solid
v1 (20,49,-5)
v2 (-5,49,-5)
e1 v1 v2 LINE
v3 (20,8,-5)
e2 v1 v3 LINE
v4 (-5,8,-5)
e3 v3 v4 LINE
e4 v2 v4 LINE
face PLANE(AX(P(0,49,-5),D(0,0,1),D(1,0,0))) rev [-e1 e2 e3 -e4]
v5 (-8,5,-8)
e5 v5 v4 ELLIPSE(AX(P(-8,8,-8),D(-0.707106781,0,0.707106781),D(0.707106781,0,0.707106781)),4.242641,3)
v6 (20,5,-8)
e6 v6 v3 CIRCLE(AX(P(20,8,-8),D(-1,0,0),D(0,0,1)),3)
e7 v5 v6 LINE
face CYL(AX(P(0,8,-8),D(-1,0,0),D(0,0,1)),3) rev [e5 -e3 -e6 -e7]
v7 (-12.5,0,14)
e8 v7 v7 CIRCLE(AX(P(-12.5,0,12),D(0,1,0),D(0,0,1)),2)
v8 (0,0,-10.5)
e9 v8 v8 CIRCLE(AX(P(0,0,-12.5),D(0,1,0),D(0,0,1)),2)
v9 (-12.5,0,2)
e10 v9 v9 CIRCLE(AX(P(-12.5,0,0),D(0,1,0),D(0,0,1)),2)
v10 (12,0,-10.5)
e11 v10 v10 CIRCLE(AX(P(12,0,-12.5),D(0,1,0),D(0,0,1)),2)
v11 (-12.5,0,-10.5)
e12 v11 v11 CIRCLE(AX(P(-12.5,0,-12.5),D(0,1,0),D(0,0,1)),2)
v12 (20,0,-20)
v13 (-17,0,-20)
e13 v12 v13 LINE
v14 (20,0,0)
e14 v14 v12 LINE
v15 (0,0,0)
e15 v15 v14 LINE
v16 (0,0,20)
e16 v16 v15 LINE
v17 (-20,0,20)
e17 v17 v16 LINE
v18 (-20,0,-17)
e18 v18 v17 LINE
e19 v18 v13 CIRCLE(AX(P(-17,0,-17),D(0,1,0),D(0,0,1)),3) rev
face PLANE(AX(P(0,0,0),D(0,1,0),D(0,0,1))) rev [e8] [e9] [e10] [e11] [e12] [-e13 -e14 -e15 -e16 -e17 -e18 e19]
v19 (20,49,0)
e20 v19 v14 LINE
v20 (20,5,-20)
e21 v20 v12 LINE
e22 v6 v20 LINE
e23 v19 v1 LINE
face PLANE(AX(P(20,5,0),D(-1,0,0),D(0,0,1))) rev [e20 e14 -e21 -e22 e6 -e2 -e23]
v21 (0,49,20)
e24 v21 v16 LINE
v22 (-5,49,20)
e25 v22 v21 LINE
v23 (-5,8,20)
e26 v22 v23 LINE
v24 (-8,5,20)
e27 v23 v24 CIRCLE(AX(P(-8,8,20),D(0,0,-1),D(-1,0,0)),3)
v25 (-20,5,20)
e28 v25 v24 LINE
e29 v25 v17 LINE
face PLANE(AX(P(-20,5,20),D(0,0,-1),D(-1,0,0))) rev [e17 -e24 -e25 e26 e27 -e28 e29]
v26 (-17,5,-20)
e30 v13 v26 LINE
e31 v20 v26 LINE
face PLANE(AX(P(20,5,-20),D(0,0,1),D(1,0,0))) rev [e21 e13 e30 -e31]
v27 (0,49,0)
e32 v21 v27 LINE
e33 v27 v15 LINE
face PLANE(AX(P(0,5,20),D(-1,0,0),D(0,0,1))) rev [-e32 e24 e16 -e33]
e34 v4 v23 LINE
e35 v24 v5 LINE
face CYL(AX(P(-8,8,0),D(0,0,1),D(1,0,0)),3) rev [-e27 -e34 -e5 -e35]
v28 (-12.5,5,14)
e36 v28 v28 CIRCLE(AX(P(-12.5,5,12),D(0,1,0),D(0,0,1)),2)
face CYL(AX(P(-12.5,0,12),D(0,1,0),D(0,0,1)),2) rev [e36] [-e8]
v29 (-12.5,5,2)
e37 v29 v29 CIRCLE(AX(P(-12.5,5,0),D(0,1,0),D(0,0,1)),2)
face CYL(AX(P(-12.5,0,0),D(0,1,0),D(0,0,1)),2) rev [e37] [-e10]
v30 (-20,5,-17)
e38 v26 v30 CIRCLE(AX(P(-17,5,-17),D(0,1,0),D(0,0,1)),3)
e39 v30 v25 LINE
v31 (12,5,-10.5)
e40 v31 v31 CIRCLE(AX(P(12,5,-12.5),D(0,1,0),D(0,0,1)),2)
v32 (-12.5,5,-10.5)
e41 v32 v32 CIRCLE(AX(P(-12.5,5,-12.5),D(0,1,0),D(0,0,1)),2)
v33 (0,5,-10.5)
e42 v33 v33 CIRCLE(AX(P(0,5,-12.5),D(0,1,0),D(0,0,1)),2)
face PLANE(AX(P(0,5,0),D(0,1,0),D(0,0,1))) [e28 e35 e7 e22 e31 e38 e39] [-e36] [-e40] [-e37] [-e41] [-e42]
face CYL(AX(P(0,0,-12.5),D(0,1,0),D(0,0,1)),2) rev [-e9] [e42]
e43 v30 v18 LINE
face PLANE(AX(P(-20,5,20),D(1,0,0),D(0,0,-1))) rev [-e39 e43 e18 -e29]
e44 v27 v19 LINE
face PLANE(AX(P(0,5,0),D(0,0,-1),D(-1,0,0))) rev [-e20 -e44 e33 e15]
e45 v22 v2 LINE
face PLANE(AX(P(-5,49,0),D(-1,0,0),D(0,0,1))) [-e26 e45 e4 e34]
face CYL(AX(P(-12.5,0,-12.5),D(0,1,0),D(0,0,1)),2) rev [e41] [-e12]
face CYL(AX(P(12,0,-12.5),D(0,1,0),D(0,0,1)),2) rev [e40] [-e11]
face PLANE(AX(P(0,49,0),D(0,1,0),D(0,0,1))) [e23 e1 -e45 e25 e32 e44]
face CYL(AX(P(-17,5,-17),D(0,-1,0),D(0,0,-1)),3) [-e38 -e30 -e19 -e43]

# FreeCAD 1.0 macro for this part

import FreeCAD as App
import Part
import Sketcher
Q = App.Units.Quantity


def edges_at(feature, points):
    """Names of the edges that pass closest to the given points."""
    edges = feature.Shape.Edges
    near = lambda p: min(range(len(edges)), key=lambda i: edges[i].distToShape(Part.Vertex(*p))[0])
    return sorted({f"Edge{near(p) + 1}" for p in points})

doc = App.newDocument("Part")
params = doc.addObject("Spreadsheet::Sheet", "Params")
for row, (alias, value) in enumerate([
    ("sketch1_width", "40 mm"),
    ("pad1_length", "5 mm"),
    ("sketch2_width", "5 mm"),
    ("sketch2_width2", "20 mm"),
    ("pad2_length", "44 mm"),
    ("sketch3_diameter", "4 mm"),
    ("fillet_radius", "3 mm"),
    ("fillet2_radius", "3 mm"),
], start=1):
    params.set(f"A{row}", alias)
    params.set(f"B{row}", "=" + value)
    params.setAlias(f"B{row}", alias)

body = doc.addObject("PartDesign::Body", "Body")

sketch1 = body.newObject("Sketcher::SketchObject", "Sketch")
sketch1.AttachmentSupport = (doc.getObject("XZ_Plane"), [""])
sketch1.MapMode = "FlatFace"
sketch1.addGeometry(Part.LineSegment(App.Vector(20, -20, 0), App.Vector(-20, -20, 0)), False)
sketch1.addGeometry(Part.LineSegment(App.Vector(-20, -20, 0), App.Vector(-20, 20, 0)), False)
sketch1.addGeometry(Part.LineSegment(App.Vector(-20, 20, 0), App.Vector(0, 20, 0)), False)
sketch1.addGeometry(Part.LineSegment(App.Vector(0, 20, 0), App.Vector(0, 0, 0)), False)
sketch1.addGeometry(Part.LineSegment(App.Vector(0, 0, 0), App.Vector(20, 0, 0)), False)
sketch1.addGeometry(Part.LineSegment(App.Vector(20, 0, 0), App.Vector(20, -20, 0)), False)
sketch1.addConstraint(Sketcher.Constraint("Coincident", 0, 2, 1, 1))
sketch1.addConstraint(Sketcher.Constraint("Coincident", 1, 2, 2, 1))
sketch1.addConstraint(Sketcher.Constraint("Coincident", 2, 2, 3, 1))
sketch1.addConstraint(Sketcher.Constraint("Coincident", 3, 2, 4, 1))
sketch1.addConstraint(Sketcher.Constraint("Coincident", 4, 2, 5, 1))
sketch1.addConstraint(Sketcher.Constraint("Coincident", 5, 2, 0, 1))
sketch1.addConstraint(Sketcher.Constraint("Horizontal", 0))
sketch1.addConstraint(Sketcher.Constraint("Vertical", 1))
sketch1.addConstraint(Sketcher.Constraint("Horizontal", 2))
sketch1.addConstraint(Sketcher.Constraint("Vertical", 3))
sketch1.addConstraint(Sketcher.Constraint("Horizontal", 4))
sketch1.addConstraint(Sketcher.Constraint("Vertical", 5))
sketch1.addConstraint(Sketcher.Constraint("Coincident", 3, 2, -1, 1))
sketch1.addConstraint(Sketcher.Constraint("Symmetric", 1, 2, 5, 2, -1, 1))
sketch1.addConstraint(Sketcher.Constraint("Equal", 0, 1))
sketch1.addConstraint(Sketcher.Constraint("DistanceX", 0, 2, 0, 1, Q("40 mm")))
sketch1.setExpression("Constraints[15]", "Params.sketch1_width")
pad1 = body.newObject("PartDesign::Pad", "Pad")
pad1.Profile = sketch1
pad1.setExpression("Length", "Params.pad1_length")
pad1.Reversed = True

sketch2 = body.newObject("Sketcher::SketchObject", "Sketch001")
sketch2.AttachmentSupport = (doc.getObject("XZ_Plane"), [""])
sketch2.MapMode = "FlatFace"
sketch2.AttachmentOffset = App.Placement(App.Vector(0, 0, -5), App.Rotation())
sketch2.addGeometry(Part.LineSegment(App.Vector(-5, 20, 0), App.Vector(0, 20, 0)), False)
sketch2.addGeometry(Part.LineSegment(App.Vector(0, 20, 0), App.Vector(0, 0, 0)), False)
sketch2.addGeometry(Part.LineSegment(App.Vector(0, 0, 0), App.Vector(20, 0, 0)), False)
sketch2.addGeometry(Part.LineSegment(App.Vector(20, 0, 0), App.Vector(20, -5, 0)), False)
sketch2.addGeometry(Part.LineSegment(App.Vector(20, -5, 0), App.Vector(-5, -5, 0)), False)
sketch2.addGeometry(Part.LineSegment(App.Vector(-5, -5, 0), App.Vector(-5, 20, 0)), False)
sketch2.addConstraint(Sketcher.Constraint("Coincident", 0, 2, 1, 1))
sketch2.addConstraint(Sketcher.Constraint("Coincident", 1, 2, 2, 1))
sketch2.addConstraint(Sketcher.Constraint("Coincident", 2, 2, 3, 1))
sketch2.addConstraint(Sketcher.Constraint("Coincident", 3, 2, 4, 1))
sketch2.addConstraint(Sketcher.Constraint("Coincident", 4, 2, 5, 1))
sketch2.addConstraint(Sketcher.Constraint("Coincident", 5, 2, 0, 1))
sketch2.addConstraint(Sketcher.Constraint("Horizontal", 0))
sketch2.addConstraint(Sketcher.Constraint("Vertical", 1))
sketch2.addConstraint(Sketcher.Constraint("Horizontal", 2))
sketch2.addConstraint(Sketcher.Constraint("Vertical", 3))
sketch2.addConstraint(Sketcher.Constraint("Horizontal", 4))
sketch2.addConstraint(Sketcher.Constraint("Vertical", 5))
sketch2.addConstraint(Sketcher.Constraint("Coincident", 1, 2, -1, 1))
sketch2.addConstraint(Sketcher.Constraint("Equal", 2, 1))
sketch2.addConstraint(Sketcher.Constraint("Equal", 0, 3))
sketch2.addConstraint(Sketcher.Constraint("DistanceX", 0, 1, 0, 2, Q("5 mm")))
sketch2.addConstraint(Sketcher.Constraint("DistanceX", 2, 1, 2, 2, Q("20 mm")))
sketch2.setExpression("Constraints[15]", "Params.sketch2_width")
sketch2.setExpression("Constraints[16]", "Params.sketch2_width2")
pad2 = body.newObject("PartDesign::Pad", "Pad001")
pad2.Profile = sketch2
pad2.setExpression("Length", "Params.pad2_length")
pad2.Reversed = True

sketch3 = body.newObject("Sketcher::SketchObject", "Sketch002")
sketch3.AttachmentSupport = (doc.getObject("XZ_Plane"), [""])
sketch3.MapMode = "FlatFace"
sketch3.AttachmentOffset = App.Placement(App.Vector(0, 0, -5), App.Rotation())
sketch3.addGeometry(Part.Circle(App.Vector(-12.5, 12, 0), App.Vector(0, 0, 1), 2), False)
sketch3.addGeometry(Part.Circle(App.Vector(-12.5, -12.5, 0), App.Vector(0, 0, 1), 2), False)
sketch3.addGeometry(Part.Circle(App.Vector(12, -12.5, 0), App.Vector(0, 0, 1), 2), False)
sketch3.addGeometry(Part.Circle(App.Vector(-12.5, 0, 0), App.Vector(0, 0, 1), 2), False)
sketch3.addGeometry(Part.Circle(App.Vector(0, -12.5, 0), App.Vector(0, 0, 1), 2), False)
sketch3.addConstraint(Sketcher.Constraint("Equal", 0, 1))
sketch3.addConstraint(Sketcher.Constraint("Equal", 1, 2))
sketch3.addConstraint(Sketcher.Constraint("Equal", 2, 3))
sketch3.addConstraint(Sketcher.Constraint("Equal", 3, 4))
sketch3.addConstraint(Sketcher.Constraint("PointOnObject", 3, 3, -1))
sketch3.addConstraint(Sketcher.Constraint("PointOnObject", 4, 3, -2))
sketch3.addConstraint(Sketcher.Constraint("Horizontal", 1, 3, 2, 3))
sketch3.addConstraint(Sketcher.Constraint("Horizontal", 2, 3, 4, 3))
sketch3.addConstraint(Sketcher.Constraint("Vertical", 0, 3, 1, 3))
sketch3.addConstraint(Sketcher.Constraint("Vertical", 1, 3, 3, 3))
sketch3.addConstraint(Sketcher.Constraint("Diameter", 0, Q("4 mm")))
sketch3.addConstraint(Sketcher.Constraint("DistanceY", -1, 1, 0, 3, Q("12 mm")))
sketch3.addConstraint(Sketcher.Constraint("DistanceX", -1, 1, 2, 3, Q("12 mm")))
sketch3.addConstraint(Sketcher.Constraint("DistanceX", 0, 3, -1, 1, Q("12.5 mm")))
sketch3.addConstraint(Sketcher.Constraint("DistanceY", 1, 3, -1, 1, Q("12.5 mm")))
sketch3.setExpression("Constraints[10]", "Params.sketch3_diameter")
pocket1 = body.newObject("PartDesign::Pocket", "Pocket")
pocket1.Profile = sketch3
pocket1.Type = "ThroughAll"
pocket1.Reversed = True
doc.recompute()

fillet = body.newObject("PartDesign::Fillet", "Fillet")
fillet.Base = (pocket1, edges_at(pocket1, [(7.5, 5, -5), (-5, 5, 7.5)]))
fillet.setExpression("Radius", "Params.fillet_radius")
doc.recompute()

fillet2 = body.newObject("PartDesign::Fillet", "Fillet001")
fillet2.Base = (fillet, edges_at(fillet, [(-20, 2.5, -20)]))
fillet2.setExpression("Radius", "Params.fillet2_radius")

doc.recompute()
